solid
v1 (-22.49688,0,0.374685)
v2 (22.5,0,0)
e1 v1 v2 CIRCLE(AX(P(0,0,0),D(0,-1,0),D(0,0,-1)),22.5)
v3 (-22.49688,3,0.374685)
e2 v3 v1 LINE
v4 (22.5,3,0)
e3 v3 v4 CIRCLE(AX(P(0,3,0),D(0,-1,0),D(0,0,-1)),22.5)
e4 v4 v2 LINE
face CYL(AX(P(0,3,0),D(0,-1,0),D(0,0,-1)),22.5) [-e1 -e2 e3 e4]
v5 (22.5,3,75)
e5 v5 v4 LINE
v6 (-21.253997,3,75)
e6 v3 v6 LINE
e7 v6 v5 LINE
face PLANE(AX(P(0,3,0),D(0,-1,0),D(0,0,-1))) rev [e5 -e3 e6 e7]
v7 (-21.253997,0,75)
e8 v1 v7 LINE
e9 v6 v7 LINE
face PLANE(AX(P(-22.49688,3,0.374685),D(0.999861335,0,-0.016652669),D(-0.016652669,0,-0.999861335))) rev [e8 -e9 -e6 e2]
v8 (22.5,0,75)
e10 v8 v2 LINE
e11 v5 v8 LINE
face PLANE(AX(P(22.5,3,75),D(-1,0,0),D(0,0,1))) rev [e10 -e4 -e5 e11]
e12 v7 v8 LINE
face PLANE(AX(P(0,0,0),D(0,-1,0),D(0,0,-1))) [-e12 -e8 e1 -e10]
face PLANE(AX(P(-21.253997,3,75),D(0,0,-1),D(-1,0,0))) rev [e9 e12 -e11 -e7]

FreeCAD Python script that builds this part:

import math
import FreeCAD as App
import Part
import Sketcher

V = App.Vector

doc = App.newDocument("Part")
params = doc.addObject("Spreadsheet::Sheet", "Params")
for row, (alias, value) in enumerate([
    ("sketch1_radius", "22.5 mm"),
    ("sketch1_height", "75 mm"),
    ("pad1_length", "3 mm"),
], start=1):
    params.set(f"A{row}", alias)
    params.set(f"B{row}", "=" + value)
    params.setAlias(f"B{row}", alias)

body = doc.addObject("PartDesign::Body", "Body")

sketch1 = body.newObject("Sketcher::SketchObject", "Sketch")
sketch1.AttachmentSupport = (doc.getObject("XZ_Plane"), [""])
sketch1.MapMode = "FlatFace"
sketch1.addGeometry(Part.LineSegment(V(-22, 0, 0), V(-21, 75, 0)), False)
sketch1.addGeometry(Part.LineSegment(V(-21, 75, 0), V(22, 75, 0)), False)
sketch1.addGeometry(Part.LineSegment(V(22, 75, 0), V(22, 0, 0)), False)
sketch1.addGeometry(Part.ArcOfCircle(Part.Circle(V(0, 0, 0), V(0, 0, 1), 22), math.radians(179), math.radians(360)), False)
sketch1.addConstraint(Sketcher.Constraint("Coincident", 0, 2, 1, 1))
sketch1.addConstraint(Sketcher.Constraint("Coincident", 1, 2, 2, 1))
sketch1.addConstraint(Sketcher.Constraint("Tangent", 2, 2, 3, 2))
sketch1.addConstraint(Sketcher.Constraint("Tangent", 3, 1, 0, 1))
sketch1.addConstraint(Sketcher.Constraint("Horizontal", 1))
sketch1.addConstraint(Sketcher.Constraint("Vertical", 2))
sketch1.addConstraint(Sketcher.Constraint("Coincident", 3, 3, -1, 1))
sketch1.addConstraint(Sketcher.Constraint("Radius", 3, 22.5))
sketch1.addConstraint(Sketcher.Constraint("DistanceY", 2, 2, 2, 1, 75.0))
sketch1.addConstraint(Sketcher.Constraint("DistanceX", 1, 1, 1, 2, 43.753997))
sketch1.setExpression("Constraints[7]", "Params.sketch1_radius")
sketch1.setExpression("Constraints[8]", "Params.sketch1_height")
pad1 = body.newObject("PartDesign::Pad", "Pad")
pad1.Profile = sketch1
pad1.setExpression("Length", "Params.pad1_length")
pad1.Reversed = True

doc.recompute()
